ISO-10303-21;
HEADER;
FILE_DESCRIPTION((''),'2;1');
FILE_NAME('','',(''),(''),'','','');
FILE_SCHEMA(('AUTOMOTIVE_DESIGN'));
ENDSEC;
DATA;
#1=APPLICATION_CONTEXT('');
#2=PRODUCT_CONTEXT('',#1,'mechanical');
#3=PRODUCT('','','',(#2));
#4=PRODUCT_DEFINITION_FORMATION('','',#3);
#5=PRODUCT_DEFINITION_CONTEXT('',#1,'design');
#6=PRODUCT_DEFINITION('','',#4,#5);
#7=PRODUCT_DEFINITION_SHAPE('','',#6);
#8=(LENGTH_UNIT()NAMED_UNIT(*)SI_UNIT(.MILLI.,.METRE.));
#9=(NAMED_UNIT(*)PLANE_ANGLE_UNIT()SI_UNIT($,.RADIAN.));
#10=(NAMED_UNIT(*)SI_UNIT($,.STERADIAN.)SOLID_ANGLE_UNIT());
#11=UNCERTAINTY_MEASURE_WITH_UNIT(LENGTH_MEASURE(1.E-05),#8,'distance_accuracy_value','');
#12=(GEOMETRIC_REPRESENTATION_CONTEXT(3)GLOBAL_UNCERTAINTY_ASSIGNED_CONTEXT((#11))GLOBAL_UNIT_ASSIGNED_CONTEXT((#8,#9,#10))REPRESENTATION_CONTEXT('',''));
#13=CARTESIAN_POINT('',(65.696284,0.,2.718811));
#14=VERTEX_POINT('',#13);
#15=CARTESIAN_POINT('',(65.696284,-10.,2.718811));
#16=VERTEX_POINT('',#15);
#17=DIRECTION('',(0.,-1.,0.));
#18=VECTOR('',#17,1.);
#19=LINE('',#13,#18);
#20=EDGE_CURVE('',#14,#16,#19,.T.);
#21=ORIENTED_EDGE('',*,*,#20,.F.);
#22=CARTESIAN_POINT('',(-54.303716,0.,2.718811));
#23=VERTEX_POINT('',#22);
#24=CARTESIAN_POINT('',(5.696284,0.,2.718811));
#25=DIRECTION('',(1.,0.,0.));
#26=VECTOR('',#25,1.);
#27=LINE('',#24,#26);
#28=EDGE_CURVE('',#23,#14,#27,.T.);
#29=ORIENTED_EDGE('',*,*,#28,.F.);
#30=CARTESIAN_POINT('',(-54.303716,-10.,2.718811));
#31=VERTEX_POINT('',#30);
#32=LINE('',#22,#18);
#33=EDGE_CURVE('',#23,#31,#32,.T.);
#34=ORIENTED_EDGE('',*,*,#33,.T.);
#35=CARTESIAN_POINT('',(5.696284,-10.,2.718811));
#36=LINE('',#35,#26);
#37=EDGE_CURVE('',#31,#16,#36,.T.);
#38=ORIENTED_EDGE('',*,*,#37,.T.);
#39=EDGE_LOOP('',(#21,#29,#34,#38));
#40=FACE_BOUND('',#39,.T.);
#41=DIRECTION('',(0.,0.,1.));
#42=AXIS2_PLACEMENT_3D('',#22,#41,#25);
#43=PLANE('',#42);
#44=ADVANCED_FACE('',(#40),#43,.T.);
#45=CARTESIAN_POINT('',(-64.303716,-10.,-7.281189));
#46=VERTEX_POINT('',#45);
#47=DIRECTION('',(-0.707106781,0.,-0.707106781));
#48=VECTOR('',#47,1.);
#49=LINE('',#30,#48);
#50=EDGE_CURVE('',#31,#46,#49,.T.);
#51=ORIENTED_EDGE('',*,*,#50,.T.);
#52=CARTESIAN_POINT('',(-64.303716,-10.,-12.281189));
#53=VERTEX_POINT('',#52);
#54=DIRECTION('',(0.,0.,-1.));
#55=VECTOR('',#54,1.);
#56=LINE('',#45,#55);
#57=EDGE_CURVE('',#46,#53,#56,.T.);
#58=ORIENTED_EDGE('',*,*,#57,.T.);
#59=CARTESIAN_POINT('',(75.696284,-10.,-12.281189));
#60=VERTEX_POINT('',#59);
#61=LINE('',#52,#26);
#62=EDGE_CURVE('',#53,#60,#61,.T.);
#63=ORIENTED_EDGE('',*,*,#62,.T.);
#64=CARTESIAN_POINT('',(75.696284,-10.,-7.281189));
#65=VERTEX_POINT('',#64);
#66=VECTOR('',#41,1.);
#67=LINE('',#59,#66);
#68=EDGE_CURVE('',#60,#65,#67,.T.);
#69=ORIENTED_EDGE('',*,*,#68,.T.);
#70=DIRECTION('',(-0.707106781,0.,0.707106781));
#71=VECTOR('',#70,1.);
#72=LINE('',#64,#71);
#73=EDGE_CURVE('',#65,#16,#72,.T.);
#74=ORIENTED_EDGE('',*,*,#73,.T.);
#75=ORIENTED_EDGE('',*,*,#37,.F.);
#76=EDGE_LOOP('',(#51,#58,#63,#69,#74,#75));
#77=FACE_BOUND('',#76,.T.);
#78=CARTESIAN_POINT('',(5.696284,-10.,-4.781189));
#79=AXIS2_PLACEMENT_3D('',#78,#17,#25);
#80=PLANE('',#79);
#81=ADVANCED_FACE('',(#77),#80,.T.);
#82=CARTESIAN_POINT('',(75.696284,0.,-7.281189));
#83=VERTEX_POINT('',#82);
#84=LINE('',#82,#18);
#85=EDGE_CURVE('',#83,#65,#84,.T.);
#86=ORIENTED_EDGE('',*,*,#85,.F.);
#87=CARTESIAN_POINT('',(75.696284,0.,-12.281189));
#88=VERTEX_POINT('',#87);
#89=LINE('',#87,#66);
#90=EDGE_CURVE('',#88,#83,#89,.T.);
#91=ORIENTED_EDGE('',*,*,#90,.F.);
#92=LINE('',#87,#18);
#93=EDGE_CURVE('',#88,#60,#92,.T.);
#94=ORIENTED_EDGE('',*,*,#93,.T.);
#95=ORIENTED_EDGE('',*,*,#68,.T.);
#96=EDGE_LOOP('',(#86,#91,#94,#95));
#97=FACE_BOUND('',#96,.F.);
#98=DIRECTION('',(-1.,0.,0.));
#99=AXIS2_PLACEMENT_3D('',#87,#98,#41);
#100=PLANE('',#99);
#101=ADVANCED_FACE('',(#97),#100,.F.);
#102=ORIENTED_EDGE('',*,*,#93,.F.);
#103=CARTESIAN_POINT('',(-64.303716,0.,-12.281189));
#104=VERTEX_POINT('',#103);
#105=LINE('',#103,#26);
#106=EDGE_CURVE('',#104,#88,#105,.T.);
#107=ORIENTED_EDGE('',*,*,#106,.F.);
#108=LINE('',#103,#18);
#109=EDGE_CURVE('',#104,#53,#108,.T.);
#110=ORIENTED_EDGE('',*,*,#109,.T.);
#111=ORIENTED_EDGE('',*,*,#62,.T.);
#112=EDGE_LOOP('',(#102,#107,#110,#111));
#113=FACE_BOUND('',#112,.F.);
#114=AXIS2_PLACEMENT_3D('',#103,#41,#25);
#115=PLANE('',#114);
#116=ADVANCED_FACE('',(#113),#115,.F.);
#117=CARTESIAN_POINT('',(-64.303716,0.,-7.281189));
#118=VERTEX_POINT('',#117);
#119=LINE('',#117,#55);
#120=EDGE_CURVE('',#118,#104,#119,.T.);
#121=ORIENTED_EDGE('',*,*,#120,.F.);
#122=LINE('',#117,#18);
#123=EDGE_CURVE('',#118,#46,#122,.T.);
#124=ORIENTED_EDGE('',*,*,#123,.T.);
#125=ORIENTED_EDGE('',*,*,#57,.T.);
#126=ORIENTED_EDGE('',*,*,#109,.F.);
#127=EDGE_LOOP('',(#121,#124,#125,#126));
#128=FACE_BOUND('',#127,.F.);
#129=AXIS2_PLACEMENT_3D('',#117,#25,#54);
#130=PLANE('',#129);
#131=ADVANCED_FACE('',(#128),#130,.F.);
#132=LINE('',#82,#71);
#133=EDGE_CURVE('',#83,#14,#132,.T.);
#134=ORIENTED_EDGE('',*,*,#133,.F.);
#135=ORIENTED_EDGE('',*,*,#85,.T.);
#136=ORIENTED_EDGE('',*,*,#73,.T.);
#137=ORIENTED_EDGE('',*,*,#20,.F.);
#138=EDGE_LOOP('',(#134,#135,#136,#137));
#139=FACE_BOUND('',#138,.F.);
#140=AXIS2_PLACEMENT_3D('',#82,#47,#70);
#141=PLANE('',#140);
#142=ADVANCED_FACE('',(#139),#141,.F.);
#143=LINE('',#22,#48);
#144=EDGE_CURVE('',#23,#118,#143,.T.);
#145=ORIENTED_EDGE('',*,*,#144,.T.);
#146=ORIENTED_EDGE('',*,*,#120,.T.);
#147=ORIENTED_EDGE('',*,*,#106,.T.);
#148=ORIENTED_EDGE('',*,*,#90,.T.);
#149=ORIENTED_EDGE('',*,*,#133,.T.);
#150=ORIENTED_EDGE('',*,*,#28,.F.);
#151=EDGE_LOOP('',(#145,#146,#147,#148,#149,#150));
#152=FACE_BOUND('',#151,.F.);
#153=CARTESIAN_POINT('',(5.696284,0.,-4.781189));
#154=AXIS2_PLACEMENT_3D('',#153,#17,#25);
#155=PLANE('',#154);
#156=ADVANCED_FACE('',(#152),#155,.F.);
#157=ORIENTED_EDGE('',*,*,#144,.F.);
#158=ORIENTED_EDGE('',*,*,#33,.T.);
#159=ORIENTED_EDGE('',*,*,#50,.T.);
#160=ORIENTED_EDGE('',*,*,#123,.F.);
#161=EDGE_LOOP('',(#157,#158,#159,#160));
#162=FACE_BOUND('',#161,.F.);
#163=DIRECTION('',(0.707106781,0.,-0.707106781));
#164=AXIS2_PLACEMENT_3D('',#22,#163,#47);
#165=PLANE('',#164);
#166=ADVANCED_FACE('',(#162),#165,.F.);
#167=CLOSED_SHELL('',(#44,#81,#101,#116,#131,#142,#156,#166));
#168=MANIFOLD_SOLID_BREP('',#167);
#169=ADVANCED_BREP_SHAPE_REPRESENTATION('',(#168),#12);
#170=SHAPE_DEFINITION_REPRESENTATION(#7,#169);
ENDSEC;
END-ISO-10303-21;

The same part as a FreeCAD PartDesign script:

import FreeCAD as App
import Part
import Sketcher
Q = App.Units.Quantity


def add_polygon(sketch, points):
    """Adds a closed chain of lines whose ends are joined by coincident constraints."""
    first, n = sketch.GeometryCount, len(points)
    for a, b in zip(points, points[1:] + points[:1]):
        sketch.addGeometry(Part.LineSegment(App.Vector(*a, 0), App.Vector(*b, 0)), False)
    for i in range(n):
        sketch.addConstraint(Sketcher.Constraint("Coincident", first + i, 2, first + (i + 1) % n, 1))

doc = App.newDocument("Part")
body = doc.addObject("PartDesign::Body", "Body")

# Sketch on XZ plane
sketch1 = body.newObject("Sketcher::SketchObject", "Sketch")
sketch1.AttachmentSupport = (doc.getObject("XZ_Plane"), [""])
sketch1.MapMode = "FlatFace"
add_polygon(sketch1, [(65.7, 2.7), (-54.3, 2.7), (-64.3, -7.3), (-64.3, -12.3), (75.7, -12.3), (75.7, -7.3)])  # lines 0-5
sketch1.addConstraint([
    Sketcher.Constraint("Horizontal", 0),
    Sketcher.Constraint("Vertical", 2),
    Sketcher.Constraint("Horizontal", 3),
    Sketcher.Constraint("Vertical", 4),
    Sketcher.Constraint("Perpendicular", 1, 5),
    Sketcher.Constraint("Horizontal", 1, 2, 4, 2),
    Sketcher.Constraint("Equal", 1, 5),
    Sketcher.Constraint("DistanceX", 0, 2, 0, 1, Q("120 mm")),
    Sketcher.Constraint("DistanceX", 3, 1, 3, 2, Q("140 mm")),
    Sketcher.Constraint("DistanceY", 2, 2, 2, 1, Q("5 mm")),
    Sketcher.Constraint("DistanceY", -1, 1, 0, 2, Q("2.718811 mm")),
    Sketcher.Constraint("DistanceX", 0, 2, -1, 1, Q("54.303716 mm")),
])
pad1 = body.newObject("PartDesign::Pad", "Pad")
pad1.Profile = sketch1
pad1.Length = 10

doc.recompute()
